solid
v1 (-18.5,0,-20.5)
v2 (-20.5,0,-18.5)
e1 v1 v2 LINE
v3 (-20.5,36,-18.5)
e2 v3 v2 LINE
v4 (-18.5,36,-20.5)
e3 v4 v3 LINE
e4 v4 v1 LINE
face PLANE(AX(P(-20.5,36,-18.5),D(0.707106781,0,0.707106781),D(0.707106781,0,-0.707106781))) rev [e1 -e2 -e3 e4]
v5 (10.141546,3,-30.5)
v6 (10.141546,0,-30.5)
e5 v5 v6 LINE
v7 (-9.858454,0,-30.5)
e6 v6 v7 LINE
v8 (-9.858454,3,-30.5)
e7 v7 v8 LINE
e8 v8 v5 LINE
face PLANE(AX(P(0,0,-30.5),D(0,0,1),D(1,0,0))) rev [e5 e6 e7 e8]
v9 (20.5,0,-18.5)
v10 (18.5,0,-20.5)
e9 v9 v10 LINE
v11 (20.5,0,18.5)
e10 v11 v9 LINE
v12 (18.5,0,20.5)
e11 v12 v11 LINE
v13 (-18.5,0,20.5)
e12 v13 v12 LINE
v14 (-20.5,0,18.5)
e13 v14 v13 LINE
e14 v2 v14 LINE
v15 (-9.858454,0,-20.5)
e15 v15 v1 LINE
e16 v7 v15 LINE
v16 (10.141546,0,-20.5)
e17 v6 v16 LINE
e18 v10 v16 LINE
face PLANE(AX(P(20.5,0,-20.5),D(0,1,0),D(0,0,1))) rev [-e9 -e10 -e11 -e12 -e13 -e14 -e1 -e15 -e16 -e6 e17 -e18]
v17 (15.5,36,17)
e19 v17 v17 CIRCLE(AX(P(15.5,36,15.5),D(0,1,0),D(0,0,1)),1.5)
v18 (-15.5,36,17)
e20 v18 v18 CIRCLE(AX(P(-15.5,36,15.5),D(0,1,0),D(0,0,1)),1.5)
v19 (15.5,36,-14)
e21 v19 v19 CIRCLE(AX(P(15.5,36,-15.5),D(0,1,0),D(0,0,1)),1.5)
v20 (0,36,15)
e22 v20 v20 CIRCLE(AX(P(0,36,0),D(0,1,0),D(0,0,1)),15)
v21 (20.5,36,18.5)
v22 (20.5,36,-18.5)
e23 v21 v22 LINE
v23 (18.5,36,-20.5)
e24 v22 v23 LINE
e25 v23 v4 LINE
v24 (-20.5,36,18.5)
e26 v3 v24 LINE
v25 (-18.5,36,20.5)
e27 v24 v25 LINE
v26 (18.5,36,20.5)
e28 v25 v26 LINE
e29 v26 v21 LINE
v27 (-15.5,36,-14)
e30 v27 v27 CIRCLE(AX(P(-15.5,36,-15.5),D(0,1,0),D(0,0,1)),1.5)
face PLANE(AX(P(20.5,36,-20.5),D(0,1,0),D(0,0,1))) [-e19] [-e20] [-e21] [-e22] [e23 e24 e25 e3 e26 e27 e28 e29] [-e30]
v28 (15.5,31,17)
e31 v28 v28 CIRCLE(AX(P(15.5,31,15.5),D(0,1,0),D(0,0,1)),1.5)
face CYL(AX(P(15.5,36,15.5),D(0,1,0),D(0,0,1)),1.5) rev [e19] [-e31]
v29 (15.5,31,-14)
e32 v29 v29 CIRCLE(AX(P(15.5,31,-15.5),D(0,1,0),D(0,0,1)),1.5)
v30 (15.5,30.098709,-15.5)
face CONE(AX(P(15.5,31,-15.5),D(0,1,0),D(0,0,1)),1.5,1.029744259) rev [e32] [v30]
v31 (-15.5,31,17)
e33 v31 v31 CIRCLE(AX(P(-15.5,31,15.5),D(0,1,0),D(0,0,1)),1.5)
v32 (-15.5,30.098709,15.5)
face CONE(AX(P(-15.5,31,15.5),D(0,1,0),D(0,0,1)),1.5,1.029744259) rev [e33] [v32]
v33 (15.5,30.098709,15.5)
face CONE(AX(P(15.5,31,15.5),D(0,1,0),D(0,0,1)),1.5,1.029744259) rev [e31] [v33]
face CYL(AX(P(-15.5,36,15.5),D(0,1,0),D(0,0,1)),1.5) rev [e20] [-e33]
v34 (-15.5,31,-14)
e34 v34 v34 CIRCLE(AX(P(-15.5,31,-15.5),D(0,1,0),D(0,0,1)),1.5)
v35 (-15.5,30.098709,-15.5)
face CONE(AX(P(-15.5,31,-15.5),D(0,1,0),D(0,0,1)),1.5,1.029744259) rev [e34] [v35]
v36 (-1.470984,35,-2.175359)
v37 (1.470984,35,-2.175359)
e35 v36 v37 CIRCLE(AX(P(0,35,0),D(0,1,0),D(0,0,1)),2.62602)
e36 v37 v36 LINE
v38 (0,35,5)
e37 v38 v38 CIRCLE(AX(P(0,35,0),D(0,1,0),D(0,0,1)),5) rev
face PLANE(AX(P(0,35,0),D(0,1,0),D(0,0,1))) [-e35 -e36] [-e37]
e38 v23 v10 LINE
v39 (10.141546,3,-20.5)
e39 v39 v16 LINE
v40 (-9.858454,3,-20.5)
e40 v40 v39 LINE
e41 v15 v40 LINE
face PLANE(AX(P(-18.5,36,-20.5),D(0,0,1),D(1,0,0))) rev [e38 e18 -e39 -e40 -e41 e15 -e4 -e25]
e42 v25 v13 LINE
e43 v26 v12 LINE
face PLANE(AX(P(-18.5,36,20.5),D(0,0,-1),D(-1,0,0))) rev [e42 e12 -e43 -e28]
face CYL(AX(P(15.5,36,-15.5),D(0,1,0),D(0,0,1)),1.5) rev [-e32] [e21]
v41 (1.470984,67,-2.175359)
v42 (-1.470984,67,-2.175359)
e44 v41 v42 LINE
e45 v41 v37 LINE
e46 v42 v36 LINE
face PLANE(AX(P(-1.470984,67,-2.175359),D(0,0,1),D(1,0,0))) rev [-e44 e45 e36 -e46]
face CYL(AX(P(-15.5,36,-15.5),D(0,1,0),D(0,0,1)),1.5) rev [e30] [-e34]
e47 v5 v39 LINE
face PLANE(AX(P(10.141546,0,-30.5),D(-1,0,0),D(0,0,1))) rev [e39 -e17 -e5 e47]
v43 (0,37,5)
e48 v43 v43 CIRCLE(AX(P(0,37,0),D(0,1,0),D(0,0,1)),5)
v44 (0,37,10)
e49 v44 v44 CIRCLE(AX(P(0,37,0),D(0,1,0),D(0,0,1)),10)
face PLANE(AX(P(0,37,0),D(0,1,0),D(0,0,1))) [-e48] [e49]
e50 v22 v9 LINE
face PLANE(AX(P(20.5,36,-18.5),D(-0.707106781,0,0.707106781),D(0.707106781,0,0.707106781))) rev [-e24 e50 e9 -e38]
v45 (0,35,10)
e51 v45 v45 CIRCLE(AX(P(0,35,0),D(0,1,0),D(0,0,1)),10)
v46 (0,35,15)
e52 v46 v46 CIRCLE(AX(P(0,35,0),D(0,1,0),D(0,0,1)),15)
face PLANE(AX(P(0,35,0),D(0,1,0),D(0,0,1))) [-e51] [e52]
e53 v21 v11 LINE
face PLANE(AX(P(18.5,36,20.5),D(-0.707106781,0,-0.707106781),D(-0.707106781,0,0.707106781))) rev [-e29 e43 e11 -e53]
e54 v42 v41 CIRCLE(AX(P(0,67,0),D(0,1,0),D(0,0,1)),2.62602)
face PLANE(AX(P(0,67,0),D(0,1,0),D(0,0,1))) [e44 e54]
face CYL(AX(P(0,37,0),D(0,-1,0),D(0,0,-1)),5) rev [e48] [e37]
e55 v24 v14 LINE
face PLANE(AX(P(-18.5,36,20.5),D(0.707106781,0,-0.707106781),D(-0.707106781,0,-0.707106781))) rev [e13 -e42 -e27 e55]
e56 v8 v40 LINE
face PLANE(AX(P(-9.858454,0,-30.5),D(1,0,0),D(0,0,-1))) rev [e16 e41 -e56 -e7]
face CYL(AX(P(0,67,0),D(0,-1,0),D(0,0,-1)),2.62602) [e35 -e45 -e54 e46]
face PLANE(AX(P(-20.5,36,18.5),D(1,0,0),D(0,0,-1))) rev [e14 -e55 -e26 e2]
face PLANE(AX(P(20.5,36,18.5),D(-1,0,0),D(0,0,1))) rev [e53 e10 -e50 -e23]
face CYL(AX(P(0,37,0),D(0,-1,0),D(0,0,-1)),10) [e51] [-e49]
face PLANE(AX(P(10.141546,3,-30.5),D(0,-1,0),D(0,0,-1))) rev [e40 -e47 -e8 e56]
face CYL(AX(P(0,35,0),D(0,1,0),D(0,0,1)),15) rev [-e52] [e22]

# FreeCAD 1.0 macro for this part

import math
import FreeCAD as App
import Part
import Sketcher
from FreeCAD import Vector


def add_polygon(sketch, points):
    """Adds a closed chain of lines whose ends are joined by coincident constraints."""
    first, n = sketch.GeometryCount, len(points)
    for a, b in zip(points, points[1:] + points[:1]):
        sketch.addGeometry(Part.LineSegment(App.Vector(*a, 0), App.Vector(*b, 0)), False)
    for i in range(n):
        sketch.addConstraint(Sketcher.Constraint("Coincident", first + i, 2, first + (i + 1) % n, 1))

doc = App.newDocument("Part")
body = doc.addObject("PartDesign::Body", "Body")

sketch1 = body.newObject("Sketcher::SketchObject", "Sketch")
sketch1.AttachmentSupport = (doc.getObject("XZ_Plane"), [""])
sketch1.MapMode = "FlatFace"
add_polygon(sketch1, [(-18.5, -20.5), (-20.5, -18.5), (-20.5, 18.5), (-18.5, 20.5), (18.5, 20.5), (20.5, 18.5), (20.5, -18.5), (18.5, -20.5)])
sketch1.addConstraint([
    Sketcher.Constraint("Vertical", 1),
    Sketcher.Constraint("Horizontal", 3),
    Sketcher.Constraint("Vertical", 5),
    Sketcher.Constraint("Horizontal", 7),
    Sketcher.Constraint("Symmetric", 0, 2, 4, 2, -1, 1),
    Sketcher.Constraint("Symmetric", 2, 2, 6, 2, -1, 1),
    Sketcher.Constraint("Perpendicular", 0, 2),
    Sketcher.Constraint("Perpendicular", 2, 4),
    Sketcher.Constraint("Perpendicular", 4, 6),
    Sketcher.Constraint("Horizontal", 1, 2, 4, 2),
    Sketcher.Constraint("Vertical", 3, 2, 6, 2),
    Sketcher.Constraint("Equal", 7, 1),
    Sketcher.Constraint("DistanceX", 3, 1, 3, 2, 37.0),
    Sketcher.Constraint("DistanceX", 1, 2, 2, 2, 2.0),
])
pad1 = body.newObject("PartDesign::Pad", "Pad")
pad1.Profile = sketch1
pad1.Length = 36
pad1.Reversed = True

sketch2 = body.newObject("Sketcher::SketchObject", "Sketch001")
sketch2.AttachmentSupport = (doc.getObject("XZ_Plane"), [""])
sketch2.MapMode = "FlatFace"
sketch2.AttachmentOffset = App.Placement(Vector(0, 0, -36), App.Rotation())
sketch2.addGeometry(Part.Circle(Vector(0, 0, 0), Vector(0, 0, 1), 15), False)
sketch2.addConstraint([
    Sketcher.Constraint("Coincident", 0, 3, -1, 1),
    Sketcher.Constraint("Diameter", 0, 30.0),
])
pocket1 = body.newObject("PartDesign::Pocket", "Pocket")
pocket1.Profile = sketch2
pocket1.Length = 1
pocket1.Reversed = True

sketch3 = body.newObject("Sketcher::SketchObject", "Sketch002")
sketch3.AttachmentSupport = (doc.getObject("XZ_Plane"), [""])
sketch3.MapMode = "FlatFace"
sketch3.AttachmentOffset = App.Placement(Vector(0, 0, -35), App.Rotation())
sketch3.addGeometry([
    Part.Circle(Vector(0, 0, 0), Vector(0, 0, 1), 10),
    Part.Circle(Vector(0, 0, 0), Vector(0, 0, 1), 5),
], False)
sketch3.addConstraint([
    Sketcher.Constraint("Coincident", 0, 3, -1, 1),
    Sketcher.Constraint("Coincident", 1, 3, -1, 1),
    Sketcher.Constraint("Diameter", 0, 20.0),
    Sketcher.Constraint("Diameter", 1, 10.0),
])
pad2 = body.newObject("PartDesign::Pad", "Pad001")
pad2.Profile = sketch3
pad2.Length = 2
pad2.Reversed = True

sketch4 = body.newObject("Sketcher::SketchObject", "Sketch003")
sketch4.AttachmentSupport = (doc.getObject("XZ_Plane"), [""])
sketch4.MapMode = "FlatFace"
sketch4.AttachmentOffset = App.Placement(Vector(0, 0, -35), App.Rotation())
sketch4.addGeometry([
    Part.LineSegment(Vector(1.470984, -2.175359, 0), Vector(-1.470984, -2.175359, 0)),
    Part.ArcOfCircle(Part.Circle(Vector(0, 0, 0), Vector(0, 0, 1), 2.62602), math.radians(-55.933328), math.radians(235.933328)),
], False)
sketch4.addConstraint([
    Sketcher.Constraint("Coincident", 0, 1, 1, 1),
    Sketcher.Constraint("Coincident", 1, 2, 0, 2),
    Sketcher.Constraint("Horizontal", 0),
    Sketcher.Constraint("Coincident", 1, 3, -1, 1),
    Sketcher.Constraint("Radius", 1, 2.62602),
    Sketcher.Constraint("DistanceX", 0, 2, 0, 1, 2.941968),
])
pad3 = body.newObject("PartDesign::Pad", "Pad002")
pad3.Profile = sketch4
pad3.Length = 32
pad3.Reversed = True

sketch5 = body.newObject("Sketcher::SketchObject", "Sketch004")
sketch5.AttachmentSupport = (doc.getObject("XZ_Plane"), [""])
sketch5.MapMode = "FlatFace"
sketch5.AttachmentOffset = App.Placement(Vector(0, 0, -36), App.Rotation())
sketch5.addGeometry([
    Part.Circle(Vector(15.5, -15.5, 0), Vector(0, 0, 1), 1.5),
    Part.Circle(Vector(-15.5, -15.5, 0), Vector(0, 0, 1), 1.5),
    Part.Circle(Vector(-15.5, 15.5, 0), Vector(0, 0, 1), 1.5),
    Part.Circle(Vector(15.5, 15.5, 0), Vector(0, 0, 1), 1.5),
], False)
sketch5.addConstraint([
    Sketcher.Constraint("Equal", 0, 1),
    Sketcher.Constraint("Equal", 1, 2),
    Sketcher.Constraint("Equal", 2, 3),
    Sketcher.Constraint("Symmetric", 0, 3, 2, 3, -1, 1),
    Sketcher.Constraint("Symmetric", 1, 3, 3, 3, -1, 1),
    Sketcher.Constraint("Symmetric", 0, 3, 1, 3, -2),
    Sketcher.Constraint("Diameter", 0, 3.0),
    Sketcher.Constraint("DistanceX", 1, 3, 0, 3, 31.0),
    Sketcher.Constraint("DistanceY", 1, 3, 2, 3, 31.0),
])
doc.recompute()
hole = body.newObject("PartDesign::Hole", "Hole")
hole.Profile = sketch5
hole.ThreadType = "None"
hole.Diameter = 3
hole.DepthType = "Dimension"
hole.Depth = 5
hole.DrillPoint = "Angled"
hole.DrillPointAngle = 118
hole.Reversed = True

sketch6 = body.newObject("Sketcher::SketchObject", "Sketch005")
sketch6.AttachmentSupport = (doc.getObject("XY_Plane"), [""])
sketch6.MapMode = "FlatFace"
sketch6.AttachmentOffset = App.Placement(Vector(0, 0, -20.5), App.Rotation())
add_polygon(sketch6, [(10.141546, 3), (10.141546, 0), (-9.858454, 0), (-9.858454, 3)])
sketch6.addConstraint([
    Sketcher.Constraint("Vertical", 0),
    Sketcher.Constraint("Horizontal", 1),
    Sketcher.Constraint("Vertical", 2),
    Sketcher.Constraint("Horizontal", 3),
    Sketcher.Constraint("PointOnObject", 0, 2, -1),
    Sketcher.Constraint("DistanceX", 1, 2, 1, 1, 20.0),
    Sketcher.Constraint("DistanceY", 0, 2, 0, 1, 3.0),
    Sketcher.Constraint("DistanceX", -1, 1, 0, 2, 10.141546),
])
pad4 = body.newObject("PartDesign::Pad", "Pad003")
pad4.Profile = sketch6
pad4.Length = 10
pad4.Reversed = True

doc.recompute()
